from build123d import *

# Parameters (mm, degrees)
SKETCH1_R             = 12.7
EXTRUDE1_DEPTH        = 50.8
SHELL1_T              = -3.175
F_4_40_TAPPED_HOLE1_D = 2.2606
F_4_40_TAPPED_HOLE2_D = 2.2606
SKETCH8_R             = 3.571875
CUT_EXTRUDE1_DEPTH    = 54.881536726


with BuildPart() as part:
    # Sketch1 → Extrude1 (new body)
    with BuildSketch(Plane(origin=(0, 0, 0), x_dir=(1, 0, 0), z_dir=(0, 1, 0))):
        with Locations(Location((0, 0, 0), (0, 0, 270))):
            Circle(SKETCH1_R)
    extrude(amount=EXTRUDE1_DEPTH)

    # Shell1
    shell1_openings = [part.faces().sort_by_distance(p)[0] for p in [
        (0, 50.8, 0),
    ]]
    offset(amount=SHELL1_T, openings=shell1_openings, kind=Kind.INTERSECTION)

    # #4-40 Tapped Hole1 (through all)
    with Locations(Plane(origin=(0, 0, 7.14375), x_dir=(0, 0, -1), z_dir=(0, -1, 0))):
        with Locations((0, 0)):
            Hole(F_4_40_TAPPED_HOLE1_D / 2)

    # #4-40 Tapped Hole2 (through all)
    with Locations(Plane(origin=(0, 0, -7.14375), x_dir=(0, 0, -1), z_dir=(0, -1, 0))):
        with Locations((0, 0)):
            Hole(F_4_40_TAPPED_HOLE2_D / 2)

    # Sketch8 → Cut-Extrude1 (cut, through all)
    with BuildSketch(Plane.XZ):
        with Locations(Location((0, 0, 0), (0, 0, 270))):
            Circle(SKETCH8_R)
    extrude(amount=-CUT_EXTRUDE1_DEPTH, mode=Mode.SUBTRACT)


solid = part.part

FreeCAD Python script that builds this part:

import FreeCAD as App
import Part
import Sketcher

V = App.Vector
Q = App.Units.Quantity


def faces_at(feature, points):
    """Names of the faces that lie closest to the given points."""
    faces = feature.Shape.Faces
    near = lambda p: min(range(len(faces)), key=lambda i: faces[i].distToShape(Part.Vertex(*p))[0])
    return sorted({f"Face{near(p) + 1}" for p in points})

doc = App.newDocument("Part")
body = doc.addObject("PartDesign::Body", "Body")

# Sketch on XZ plane
sketch1 = doc.addObject("Sketcher::SketchObject", "Sketch")
body.addObject(sketch1)
sketch1.AttachmentSupport = (doc.XZ_Plane, [""])
sketch1.MapMode = "FlatFace"
sketch1.addGeometry(Part.Circle(V(0, 0, 0), V(0, 0, 1), 13), False)
sketch1.addConstraint([
    Sketcher.Constraint("Coincident", 0, 3, -1, 1),
    Sketcher.Constraint("Diameter", 0, Q("1 in")),
])
pad1 = doc.addObject("PartDesign::Pad", "Pad")
body.addObject(pad1)
pad1.Profile = sketch1
pad1.Length = Q("2 in")
pad1.Reversed = True
doc.recompute()

thickness = doc.addObject("PartDesign::Thickness", "Thickness")
body.addObject(thickness)
thickness.Base = (pad1, faces_at(pad1, [(0, 50.8, 0)]))
thickness.Value = Q("0.125 in")
thickness.Reversed = True
thickness.Join = "Intersection"

# Sketch on XZ plane
sketch2 = doc.addObject("Sketcher::SketchObject", "Sketch001")
body.addObject(sketch2)
sketch2.AttachmentSupport = (doc.XZ_Plane, [""])
sketch2.MapMode = "FlatFace"
sketch2.addGeometry(Part.Circle(V(0, 7.1, 0), V(0, 0, 1), 1.1), False)
sketch2.addConstraint([
    Sketcher.Constraint("PointOnObject", 0, 3, -2),
    Sketcher.Constraint("Diameter", 0, Q("0.089 in")),
    Sketcher.Constraint("DistanceY", -1, 1, 0, 3, Q("0.28125 in")),
])
doc.recompute()
hole = doc.addObject("PartDesign::Hole", "Hole")
body.addObject(hole)
hole.Profile = sketch2
hole.ThreadType = "None"
hole.Diameter = Q("0.089 in")
hole.DepthType = "ThroughAll"

# Sketch on XZ plane
sketch3 = doc.addObject("Sketcher::SketchObject", "Sketch002")
body.addObject(sketch3)
sketch3.AttachmentSupport = (doc.XZ_Plane, [""])
sketch3.MapMode = "FlatFace"
sketch3.addGeometry(Part.Circle(V(0, -7.1, 0), V(0, 0, 1), 1.1), False)
sketch3.addConstraint([
    Sketcher.Constraint("PointOnObject", 0, 3, -2),
    Sketcher.Constraint("Diameter", 0, Q("0.089 in")),
    Sketcher.Constraint("DistanceY", 0, 3, -1, 1, Q("0.28125 in")),
])
doc.recompute()
hole2 = doc.addObject("PartDesign::Hole", "Hole001")
body.addObject(hole2)
hole2.Profile = sketch3
hole2.ThreadType = "None"
hole2.Diameter = Q("0.089 in")
hole2.DepthType = "ThroughAll"

# Sketch on XZ plane
sketch4 = doc.addObject("Sketcher::SketchObject", "Sketch003")
body.addObject(sketch4)
sketch4.AttachmentSupport = (doc.XZ_Plane, [""])
sketch4.MapMode = "FlatFace"
sketch4.addGeometry(Part.Circle(V(0, 0, 0), V(0, 0, 1), 3.6), False)
sketch4.addConstraint([
    Sketcher.Constraint("Coincident", 0, 3, -1, 1),
    Sketcher.Constraint("Diameter", 0, Q("0.28125 in")),
])
pocket1 = doc.addObject("PartDesign::Pocket", "Pocket")
body.addObject(pocket1)
pocket1.Profile = sketch4
pocket1.Type = "ThroughAll"

doc.recompute()
